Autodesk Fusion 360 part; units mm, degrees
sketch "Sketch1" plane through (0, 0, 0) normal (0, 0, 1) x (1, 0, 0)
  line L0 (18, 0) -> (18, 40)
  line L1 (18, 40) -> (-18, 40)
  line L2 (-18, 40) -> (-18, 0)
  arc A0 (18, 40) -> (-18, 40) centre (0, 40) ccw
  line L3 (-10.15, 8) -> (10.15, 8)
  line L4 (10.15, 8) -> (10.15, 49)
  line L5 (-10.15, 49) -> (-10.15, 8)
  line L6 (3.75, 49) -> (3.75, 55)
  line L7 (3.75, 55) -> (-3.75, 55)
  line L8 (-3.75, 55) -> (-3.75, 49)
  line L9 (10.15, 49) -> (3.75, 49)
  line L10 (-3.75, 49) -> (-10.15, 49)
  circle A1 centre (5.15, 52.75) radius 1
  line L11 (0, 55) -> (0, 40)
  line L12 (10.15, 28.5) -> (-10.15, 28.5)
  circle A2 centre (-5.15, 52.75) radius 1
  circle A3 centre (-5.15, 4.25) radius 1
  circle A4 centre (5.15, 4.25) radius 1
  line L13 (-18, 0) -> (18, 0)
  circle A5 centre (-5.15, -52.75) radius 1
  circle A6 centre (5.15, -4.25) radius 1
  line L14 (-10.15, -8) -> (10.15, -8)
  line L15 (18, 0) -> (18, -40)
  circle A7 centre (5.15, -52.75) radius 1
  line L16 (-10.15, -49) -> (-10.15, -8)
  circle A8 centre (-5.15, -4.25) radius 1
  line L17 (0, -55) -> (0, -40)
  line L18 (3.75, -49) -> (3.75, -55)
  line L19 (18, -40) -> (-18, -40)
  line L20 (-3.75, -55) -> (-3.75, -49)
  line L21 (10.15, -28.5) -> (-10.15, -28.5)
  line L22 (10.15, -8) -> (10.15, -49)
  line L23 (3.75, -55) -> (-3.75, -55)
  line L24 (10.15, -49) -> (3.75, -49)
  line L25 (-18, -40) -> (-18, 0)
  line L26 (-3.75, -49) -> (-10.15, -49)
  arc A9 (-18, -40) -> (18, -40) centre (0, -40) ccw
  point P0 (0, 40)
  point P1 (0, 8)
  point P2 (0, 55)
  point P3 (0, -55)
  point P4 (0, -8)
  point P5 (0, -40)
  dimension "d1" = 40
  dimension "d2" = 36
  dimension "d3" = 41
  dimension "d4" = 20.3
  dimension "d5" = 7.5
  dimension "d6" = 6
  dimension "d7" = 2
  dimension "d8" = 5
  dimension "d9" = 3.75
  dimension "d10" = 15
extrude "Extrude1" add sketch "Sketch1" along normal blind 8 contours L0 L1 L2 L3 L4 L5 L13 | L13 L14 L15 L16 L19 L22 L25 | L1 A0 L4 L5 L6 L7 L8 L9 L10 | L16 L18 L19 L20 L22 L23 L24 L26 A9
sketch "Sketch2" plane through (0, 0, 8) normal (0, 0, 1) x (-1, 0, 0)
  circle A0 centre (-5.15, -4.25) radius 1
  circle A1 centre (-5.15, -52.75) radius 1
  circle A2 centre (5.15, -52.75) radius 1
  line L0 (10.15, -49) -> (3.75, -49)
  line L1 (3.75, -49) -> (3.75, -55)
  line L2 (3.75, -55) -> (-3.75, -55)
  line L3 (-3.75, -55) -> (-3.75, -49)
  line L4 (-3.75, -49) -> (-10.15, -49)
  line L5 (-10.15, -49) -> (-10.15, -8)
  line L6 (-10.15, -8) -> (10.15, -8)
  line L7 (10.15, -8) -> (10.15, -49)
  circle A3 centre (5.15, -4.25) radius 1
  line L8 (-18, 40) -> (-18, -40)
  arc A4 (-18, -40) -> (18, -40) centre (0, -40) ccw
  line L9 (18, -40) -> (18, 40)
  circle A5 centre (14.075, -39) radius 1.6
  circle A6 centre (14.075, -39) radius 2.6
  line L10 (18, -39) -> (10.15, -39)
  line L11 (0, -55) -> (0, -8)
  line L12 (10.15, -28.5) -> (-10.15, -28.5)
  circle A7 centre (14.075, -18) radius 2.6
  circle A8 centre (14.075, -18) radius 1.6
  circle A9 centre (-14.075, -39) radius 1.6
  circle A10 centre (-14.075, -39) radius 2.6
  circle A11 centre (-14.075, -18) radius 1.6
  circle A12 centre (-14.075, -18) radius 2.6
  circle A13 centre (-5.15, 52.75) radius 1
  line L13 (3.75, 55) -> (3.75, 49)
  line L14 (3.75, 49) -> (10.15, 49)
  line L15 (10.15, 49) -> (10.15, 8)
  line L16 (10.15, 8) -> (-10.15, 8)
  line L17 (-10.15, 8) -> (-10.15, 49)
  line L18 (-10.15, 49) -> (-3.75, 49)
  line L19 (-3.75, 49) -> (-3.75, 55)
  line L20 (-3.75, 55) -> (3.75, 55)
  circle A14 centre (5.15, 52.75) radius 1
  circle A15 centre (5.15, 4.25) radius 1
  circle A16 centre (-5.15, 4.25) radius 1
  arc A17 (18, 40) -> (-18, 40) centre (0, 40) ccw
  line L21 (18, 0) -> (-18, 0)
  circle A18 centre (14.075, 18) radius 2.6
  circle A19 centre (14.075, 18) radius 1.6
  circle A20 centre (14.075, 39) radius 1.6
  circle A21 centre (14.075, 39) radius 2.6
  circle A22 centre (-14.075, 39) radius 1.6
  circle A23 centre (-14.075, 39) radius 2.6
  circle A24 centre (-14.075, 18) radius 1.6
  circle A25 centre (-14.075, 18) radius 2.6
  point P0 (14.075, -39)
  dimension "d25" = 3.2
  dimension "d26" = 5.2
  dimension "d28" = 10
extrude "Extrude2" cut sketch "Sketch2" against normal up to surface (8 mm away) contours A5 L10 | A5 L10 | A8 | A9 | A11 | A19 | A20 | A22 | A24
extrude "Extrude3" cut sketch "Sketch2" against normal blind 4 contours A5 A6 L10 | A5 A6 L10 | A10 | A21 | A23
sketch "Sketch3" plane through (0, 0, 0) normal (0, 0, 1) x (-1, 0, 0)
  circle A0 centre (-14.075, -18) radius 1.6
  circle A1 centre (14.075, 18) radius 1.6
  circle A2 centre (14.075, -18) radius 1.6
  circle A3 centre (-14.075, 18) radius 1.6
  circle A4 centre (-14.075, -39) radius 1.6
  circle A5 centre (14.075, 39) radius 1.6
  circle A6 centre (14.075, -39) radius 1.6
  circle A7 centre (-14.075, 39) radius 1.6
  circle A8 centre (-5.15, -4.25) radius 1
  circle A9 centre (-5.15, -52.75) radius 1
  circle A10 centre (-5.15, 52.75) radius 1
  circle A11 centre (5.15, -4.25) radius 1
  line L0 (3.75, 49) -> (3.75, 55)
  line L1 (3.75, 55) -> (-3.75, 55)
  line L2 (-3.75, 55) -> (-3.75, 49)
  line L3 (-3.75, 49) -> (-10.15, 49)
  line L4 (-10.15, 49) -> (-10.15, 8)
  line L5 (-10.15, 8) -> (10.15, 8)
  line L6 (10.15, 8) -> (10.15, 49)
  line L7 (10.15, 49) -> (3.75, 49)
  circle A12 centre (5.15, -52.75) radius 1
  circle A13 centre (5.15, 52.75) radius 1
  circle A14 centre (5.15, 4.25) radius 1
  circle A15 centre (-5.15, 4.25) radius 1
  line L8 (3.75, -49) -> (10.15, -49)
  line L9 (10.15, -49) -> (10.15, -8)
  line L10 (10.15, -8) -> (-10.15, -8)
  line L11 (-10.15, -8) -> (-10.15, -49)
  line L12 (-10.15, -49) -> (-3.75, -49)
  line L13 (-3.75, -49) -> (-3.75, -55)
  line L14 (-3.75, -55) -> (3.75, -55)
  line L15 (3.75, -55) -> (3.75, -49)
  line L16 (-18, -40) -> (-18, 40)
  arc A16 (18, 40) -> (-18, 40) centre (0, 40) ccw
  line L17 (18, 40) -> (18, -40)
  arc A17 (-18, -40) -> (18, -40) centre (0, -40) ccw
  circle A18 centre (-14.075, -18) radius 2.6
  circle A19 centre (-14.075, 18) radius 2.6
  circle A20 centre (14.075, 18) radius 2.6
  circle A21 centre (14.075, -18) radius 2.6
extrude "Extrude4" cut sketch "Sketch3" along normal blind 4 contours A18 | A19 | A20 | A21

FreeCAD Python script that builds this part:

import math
import FreeCAD as App
import Part
import Sketcher
from FreeCAD import Vector

doc = App.newDocument("Part")
body = doc.addObject("PartDesign::Body", "Body")

sketch1 = body.newObject("Sketcher::SketchObject", "Sketch")
sketch1.AttachmentSupport = (doc.getObject("XY_Plane"), [""])
sketch1.MapMode = "FlatFace"
sketch1.addGeometry(Part.LineSegment(Vector(-18, 40, 0), Vector(-18, -40, 0)), False)
sketch1.addGeometry(Part.ArcOfCircle(Part.Circle(Vector(0, -40, 0), Vector(0, 0, 1), 18), math.radians(180), math.radians(360)), False)
sketch1.addGeometry(Part.LineSegment(Vector(18, -40, 0), Vector(18, 40, 0)), False)
sketch1.addGeometry(Part.ArcOfCircle(Part.Circle(Vector(0, 40, 0), Vector(0, 0, 1), 18), math.radians(0), math.radians(180)), False)
sketch1.addGeometry(Part.LineSegment(Vector(-10.2, 49, 0), Vector(-3.8, 49, 0)), False)
sketch1.addGeometry(Part.LineSegment(Vector(-3.8, 49, 0), Vector(-3.8, 55, 0)), False)
sketch1.addGeometry(Part.LineSegment(Vector(-3.8, 55, 0), Vector(3.8, 55, 0)), False)
sketch1.addGeometry(Part.LineSegment(Vector(3.8, 55, 0), Vector(3.8, 49, 0)), False)
sketch1.addGeometry(Part.LineSegment(Vector(3.8, 49, 0), Vector(10.2, 49, 0)), False)
sketch1.addGeometry(Part.LineSegment(Vector(10.2, 49, 0), Vector(10.2, 8, 0)), False)
sketch1.addGeometry(Part.LineSegment(Vector(10.2, 8, 0), Vector(-10.2, 8, 0)), False)
sketch1.addGeometry(Part.LineSegment(Vector(-10.2, 8, 0), Vector(-10.2, 49, 0)), False)
sketch1.addGeometry(Part.Circle(Vector(-5.2, 4.2, 0), Vector(0, 0, 1), 1), False)
sketch1.addGeometry(Part.Circle(Vector(5.2, 4.2, 0), Vector(0, 0, 1), 1), False)
sketch1.addGeometry(Part.LineSegment(Vector(10.2, -49, 0), Vector(3.8, -49, 0)), False)
sketch1.addGeometry(Part.LineSegment(Vector(3.8, -49, 0), Vector(3.8, -55, 0)), False)
sketch1.addGeometry(Part.LineSegment(Vector(3.8, -55, 0), Vector(-3.8, -55, 0)), False)
sketch1.addGeometry(Part.LineSegment(Vector(-3.8, -55, 0), Vector(-3.8, -49, 0)), False)
sketch1.addGeometry(Part.LineSegment(Vector(-3.8, -49, 0), Vector(-10.2, -49, 0)), False)
sketch1.addGeometry(Part.LineSegment(Vector(-10.2, -49, 0), Vector(-10.2, -8, 0)), False)
sketch1.addGeometry(Part.LineSegment(Vector(-10.2, -8, 0), Vector(10.2, -8, 0)), False)
sketch1.addGeometry(Part.LineSegment(Vector(10.2, -8, 0), Vector(10.2, -49, 0)), False)
sketch1.addGeometry(Part.Circle(Vector(5.2, -4.2, 0), Vector(0, 0, 1), 1), False)
sketch1.addGeometry(Part.Circle(Vector(-5.2, -4.2, 0), Vector(0, 0, 1), 1), False)
sketch1.addGeometry(Part.Circle(Vector(-5.2, 52.8, 0), Vector(0, 0, 1), 1), False)
sketch1.addGeometry(Part.Circle(Vector(5.2, 52.8, 0), Vector(0, 0, 1), 1), False)
sketch1.addGeometry(Part.Circle(Vector(-5.2, -52.8, 0), Vector(0, 0, 1), 1), False)
sketch1.addGeometry(Part.Circle(Vector(5.2, -52.8, 0), Vector(0, 0, 1), 1), False)
sketch1.addConstraint(Sketcher.Constraint("Tangent", 0, 2, 1, 1))
sketch1.addConstraint(Sketcher.Constraint("Tangent", 1, 2, 2, 1))
sketch1.addConstraint(Sketcher.Constraint("Tangent", 2, 2, 3, 1))
sketch1.addConstraint(Sketcher.Constraint("Tangent", 3, 2, 0, 1))
sketch1.addConstraint(Sketcher.Constraint("Coincident", 4, 2, 5, 1))
sketch1.addConstraint(Sketcher.Constraint("Coincident", 5, 2, 6, 1))
sketch1.addConstraint(Sketcher.Constraint("Coincident", 6, 2, 7, 1))
sketch1.addConstraint(Sketcher.Constraint("Coincident", 7, 2, 8, 1))
sketch1.addConstraint(Sketcher.Constraint("Coincident", 8, 2, 9, 1))
sketch1.addConstraint(Sketcher.Constraint("Coincident", 9, 2, 10, 1))
sketch1.addConstraint(Sketcher.Constraint("Coincident", 10, 2, 11, 1))
sketch1.addConstraint(Sketcher.Constraint("Coincident", 11, 2, 4, 1))
sketch1.addConstraint(Sketcher.Constraint("Coincident", 14, 2, 15, 1))
sketch1.addConstraint(Sketcher.Constraint("Coincident", 15, 2, 16, 1))
sketch1.addConstraint(Sketcher.Constraint("Coincident", 16, 2, 17, 1))
sketch1.addConstraint(Sketcher.Constraint("Coincident", 17, 2, 18, 1))
sketch1.addConstraint(Sketcher.Constraint("Coincident", 18, 2, 19, 1))
sketch1.addConstraint(Sketcher.Constraint("Coincident", 19, 2, 20, 1))
sketch1.addConstraint(Sketcher.Constraint("Coincident", 20, 2, 21, 1))
sketch1.addConstraint(Sketcher.Constraint("Coincident", 21, 2, 14, 1))
sketch1.addConstraint(Sketcher.Constraint("Vertical", 0))
sketch1.addConstraint(Sketcher.Constraint("Vertical", 2))
sketch1.addConstraint(Sketcher.Constraint("Horizontal", 4))
sketch1.addConstraint(Sketcher.Constraint("Vertical", 5))
sketch1.addConstraint(Sketcher.Constraint("Horizontal", 6))
sketch1.addConstraint(Sketcher.Constraint("Vertical", 7))
sketch1.addConstraint(Sketcher.Constraint("Horizontal", 8))
sketch1.addConstraint(Sketcher.Constraint("Vertical", 9))
sketch1.addConstraint(Sketcher.Constraint("Horizontal", 10))
sketch1.addConstraint(Sketcher.Constraint("Vertical", 11))
sketch1.addConstraint(Sketcher.Constraint("Horizontal", 14))
sketch1.addConstraint(Sketcher.Constraint("Vertical", 15))
sketch1.addConstraint(Sketcher.Constraint("Horizontal", 16))
sketch1.addConstraint(Sketcher.Constraint("Vertical", 17))
sketch1.addConstraint(Sketcher.Constraint("Horizontal", 18))
sketch1.addConstraint(Sketcher.Constraint("Vertical", 19))
sketch1.addConstraint(Sketcher.Constraint("Horizontal", 20))
sketch1.addConstraint(Sketcher.Constraint("Vertical", 21))
sketch1.addConstraint(Sketcher.Constraint("Equal", 12, 13))
sketch1.addConstraint(Sketcher.Constraint("Equal", 13, 22))
sketch1.addConstraint(Sketcher.Constraint("Equal", 22, 23))
sketch1.addConstraint(Sketcher.Constraint("Equal", 23, 24))
sketch1.addConstraint(Sketcher.Constraint("Equal", 24, 25))
sketch1.addConstraint(Sketcher.Constraint("Equal", 25, 26))
sketch1.addConstraint(Sketcher.Constraint("Equal", 26, 27))
sketch1.addConstraint(Sketcher.Constraint("Symmetric", 1, 3, 3, 3, -1, 1))
sketch1.addConstraint(Sketcher.Constraint("Symmetric", 12, 3, 22, 3, -1, 1))
sketch1.addConstraint(Sketcher.Constraint("Symmetric", 13, 3, 23, 3, -1, 1))
sketch1.addConstraint(Sketcher.Constraint("Symmetric", 25, 3, 26, 3, -1, 1))
sketch1.addConstraint(Sketcher.Constraint("Symmetric", 24, 3, 27, 3, -1, 1))
sketch1.addConstraint(Sketcher.Constraint("Symmetric", 4, 2, 14, 2, -1, 1))
sketch1.addConstraint(Sketcher.Constraint("Symmetric", 6, 2, 16, 2, -1, 1))
sketch1.addConstraint(Sketcher.Constraint("Symmetric", 8, 2, 18, 2, -1, 1))
sketch1.addConstraint(Sketcher.Constraint("Symmetric", 10, 2, 20, 2, -1, 1))
sketch1.addConstraint(Sketcher.Constraint("Symmetric", 12, 3, 13, 3, -2))
sketch1.addConstraint(Sketcher.Constraint("Symmetric", 24, 3, 25, 3, -2))
sketch1.addConstraint(Sketcher.Constraint("Symmetric", 4, 2, 7, 2, -2))
sketch1.addConstraint(Sketcher.Constraint("Vertical", 23, 3, 24, 3))
sketch1.addConstraint(Sketcher.Constraint("Vertical", 11, 2, 18, 2))
sketch1.addConstraint(Sketcher.Constraint("Diameter", 12, 2.0))
sketch1.addConstraint(Sketcher.Constraint("Radius", 1, 18.0))
sketch1.addConstraint(Sketcher.Constraint("DistanceY", 5, 1, 5, 2, 6.0))
sketch1.addConstraint(Sketcher.Constraint("DistanceY", 9, 2, 9, 1, 41.0))
sketch1.addConstraint(Sketcher.Constraint("DistanceX", 6, 1, 6, 2, 7.5))
sketch1.addConstraint(Sketcher.Constraint("DistanceX", 10, 2, 10, 1, 20.3))
sketch1.addConstraint(Sketcher.Constraint("DistanceY", 1, 3, -1, 1, 40.0))
sketch1.addConstraint(Sketcher.Constraint("DistanceY", 3, 3, 5, 2, 15.0))
sketch1.addConstraint(Sketcher.Constraint("DistanceX", 25, 3, 8, 2, 5.0))
sketch1.addConstraint(Sketcher.Constraint("DistanceY", 4, 2, 24, 3, 3.75))
sketch1.addConstraint(Sketcher.Constraint("DistanceY", 13, 3, 9, 2, 3.75))
pad1 = body.newObject("PartDesign::Pad", "Pad")
pad1.Profile = sketch1
pad1.Length = 8

sketch2 = body.newObject("Sketcher::SketchObject", "Sketch001")
sketch2.AttachmentSupport = (doc.getObject("XY_Plane"), [""])
sketch2.MapMode = "FlatFace"
sketch2.AttachmentOffset = App.Placement(Vector(0, 0, 8), App.Rotation())
sketch2.addGeometry(Part.Circle(Vector(-14.1, 39, 0), Vector(0, 0, 1), 1.6), False)
sketch2.addGeometry(Part.Circle(Vector(-14.1, 18, 0), Vector(0, 0, 1), 1.6), False)
sketch2.addGeometry(Part.Circle(Vector(14.1, 39, 0), Vector(0, 0, 1), 1.6), False)
sketch2.addGeometry(Part.Circle(Vector(14.1, 18, 0), Vector(0, 0, 1), 1.6), False)
sketch2.addGeometry(Part.Circle(Vector(-14.1, -18, 0), Vector(0, 0, 1), 1.6), False)
sketch2.addGeometry(Part.Circle(Vector(-14.1, -39, 0), Vector(0, 0, 1), 1.6), False)
sketch2.addGeometry(Part.Circle(Vector(14.1, -39, 0), Vector(0, 0, 1), 1.6), False)
sketch2.addGeometry(Part.Circle(Vector(14.1, -18, 0), Vector(0, 0, 1), 1.6), False)
sketch2.addConstraint(Sketcher.Constraint("Equal", 0, 1))
sketch2.addConstraint(Sketcher.Constraint("Equal", 1, 2))
sketch2.addConstraint(Sketcher.Constraint("Equal", 2, 3))
sketch2.addConstraint(Sketcher.Constraint("Equal", 3, 4))
sketch2.addConstraint(Sketcher.Constraint("Equal", 4, 5))
sketch2.addConstraint(Sketcher.Constraint("Equal", 5, 6))
sketch2.addConstraint(Sketcher.Constraint("Equal", 6, 7))
sketch2.addConstraint(Sketcher.Constraint("Symmetric", 3, 3, 4, 3, -1, 1))
sketch2.addConstraint(Sketcher.Constraint("Symmetric", 2, 3, 5, 3, -1, 1))
sketch2.addConstraint(Sketcher.Constraint("Symmetric", 0, 3, 6, 3, -1, 1))
sketch2.addConstraint(Sketcher.Constraint("Symmetric", 1, 3, 7, 3, -1, 1))
sketch2.addConstraint(Sketcher.Constraint("Symmetric", 0, 3, 2, 3, -2))
sketch2.addConstraint(Sketcher.Constraint("Symmetric", 1, 3, 3, 3, -2))
sketch2.addConstraint(Sketcher.Constraint("Vertical", 0, 3, 1, 3))
sketch2.addConstraint(Sketcher.Constraint("Diameter", 0, 3.2))
sketch2.addConstraint(Sketcher.Constraint("DistanceY", -1, 1, 0, 3, 39.0))
sketch2.addConstraint(Sketcher.Constraint("DistanceY", -1, 1, 1, 3, 18.0))
sketch2.addConstraint(Sketcher.Constraint("DistanceX", 0, 3, 2, 3, 28.15))
pocket1 = body.newObject("PartDesign::Pocket", "Pocket")
pocket1.Profile = sketch2
pocket1.Length = 8

sketch3 = body.newObject("Sketcher::SketchObject", "Sketch002")
sketch3.AttachmentSupport = (doc.getObject("XY_Plane"), [""])
sketch3.MapMode = "FlatFace"
sketch3.AttachmentOffset = App.Placement(Vector(0, 0, 8), App.Rotation())
sketch3.addGeometry(Part.Circle(Vector(-14.1, 39, 0), Vector(0, 0, 1), 2.6), False)
sketch3.addGeometry(Part.Circle(Vector(-14.1, 39, 0), Vector(0, 0, 1), 1.6), False)
sketch3.addGeometry(Part.Circle(Vector(14.1, 39, 0), Vector(0, 0, 1), 2.6), False)
sketch3.addGeometry(Part.Circle(Vector(14.1, 39, 0), Vector(0, 0, 1), 1.6), False)
sketch3.addGeometry(Part.Circle(Vector(-14.1, -39, 0), Vector(0, 0, 1), 2.6), False)
sketch3.addGeometry(Part.Circle(Vector(-14.1, -39, 0), Vector(0, 0, 1), 1.6), False)
sketch3.addGeometry(Part.Circle(Vector(14.1, -39, 0), Vector(0, 0, 1), 2.6), False)
sketch3.addGeometry(Part.Circle(Vector(14.1, -39, 0), Vector(0, 0, 1), 1.6), False)
sketch3.addConstraint(Sketcher.Constraint("Coincident", 1, 3, 0, 3))
sketch3.addConstraint(Sketcher.Constraint("Coincident", 3, 3, 2, 3))
sketch3.addConstraint(Sketcher.Constraint("Coincident", 5, 3, 4, 3))
sketch3.addConstraint(Sketcher.Constraint("Coincident", 7, 3, 6, 3))
sketch3.addConstraint(Sketcher.Constraint("Equal", 0, 2))
sketch3.addConstraint(Sketcher.Constraint("Equal", 1, 3))
sketch3.addConstraint(Sketcher.Constraint("Equal", 2, 4))
sketch3.addConstraint(Sketcher.Constraint("Equal", 3, 5))
sketch3.addConstraint(Sketcher.Constraint("Equal", 4, 6))
sketch3.addConstraint(Sketcher.Constraint("Equal", 5, 7))
sketch3.addConstraint(Sketcher.Constraint("Symmetric", 2, 3, 4, 3, -1, 1))
sketch3.addConstraint(Sketcher.Constraint("Symmetric", 0, 3, 6, 3, -1, 1))
sketch3.addConstraint(Sketcher.Constraint("Symmetric", 0, 3, 2, 3, -2))
sketch3.addConstraint(Sketcher.Constraint("Diameter", 0, 5.2))
sketch3.addConstraint(Sketcher.Constraint("Diameter", 1, 3.2))
sketch3.addConstraint(Sketcher.Constraint("DistanceY", -1, 1, 0, 3, 39.0))
sketch3.addConstraint(Sketcher.Constraint("DistanceX", 0, 3, 2, 3, 28.15))
pocket2 = body.newObject("PartDesign::Pocket", "Pocket001")
pocket2.Profile = sketch3
pocket2.Length = 4

sketch4 = body.newObject("Sketcher::SketchObject", "Sketch003")
sketch4.AttachmentSupport = (doc.getObject("XY_Plane"), [""])
sketch4.MapMode = "FlatFace"
sketch4.addGeometry(Part.Circle(Vector(14.1, 18, 0), Vector(0, 0, 1), 2.6), False)
sketch4.addGeometry(Part.Circle(Vector(14.1, 18, 0), Vector(0, 0, 1), 1.6), False)
sketch4.addGeometry(Part.Circle(Vector(14.1, -18, 0), Vector(0, 0, 1), 2.6), False)
sketch4.addGeometry(Part.Circle(Vector(14.1, -18, 0), Vector(0, 0, 1), 1.6), False)
sketch4.addGeometry(Part.Circle(Vector(-14.1, -18, 0), Vector(0, 0, 1), 2.6), False)
sketch4.addGeometry(Part.Circle(Vector(-14.1, -18, 0), Vector(0, 0, 1), 1.6), False)
sketch4.addGeometry(Part.Circle(Vector(-14.1, 18, 0), Vector(0, 0, 1), 2.6), False)
sketch4.addGeometry(Part.Circle(Vector(-14.1, 18, 0), Vector(0, 0, 1), 1.6), False)
sketch4.addConstraint(Sketcher.Constraint("Coincident", 1, 3, 0, 3))
sketch4.addConstraint(Sketcher.Constraint("Coincident", 3, 3, 2, 3))
sketch4.addConstraint(Sketcher.Constraint("Coincident", 5, 3, 4, 3))
sketch4.addConstraint(Sketcher.Constraint("Coincident", 7, 3, 6, 3))
sketch4.addConstraint(Sketcher.Constraint("Equal", 0, 2))
sketch4.addConstraint(Sketcher.Constraint("Equal", 1, 3))
sketch4.addConstraint(Sketcher.Constraint("Equal", 2, 4))
sketch4.addConstraint(Sketcher.Constraint("Equal", 3, 5))
sketch4.addConstraint(Sketcher.Constraint("Equal", 4, 6))
sketch4.addConstraint(Sketcher.Constraint("Equal", 5, 7))
sketch4.addConstraint(Sketcher.Constraint("Symmetric", 0, 3, 4, 3, -1, 1))
sketch4.addConstraint(Sketcher.Constraint("Symmetric", 2, 3, 6, 3, -1, 1))
sketch4.addConstraint(Sketcher.Constraint("Symmetric", 2, 3, 4, 3, -2))
sketch4.addConstraint(Sketcher.Constraint("Diameter", 0, 5.2))
sketch4.addConstraint(Sketcher.Constraint("Diameter", 1, 3.2))
sketch4.addConstraint(Sketcher.Constraint("DistanceY", -1, 1, 0, 3, 18.0))
sketch4.addConstraint(Sketcher.Constraint("DistanceX", 4, 3, 2, 3, 28.15))
pocket3 = body.newObject("PartDesign::Pocket", "Pocket002")
pocket3.Profile = sketch4
pocket3.Length = 4
pocket3.Reversed = True

doc.recompute()
